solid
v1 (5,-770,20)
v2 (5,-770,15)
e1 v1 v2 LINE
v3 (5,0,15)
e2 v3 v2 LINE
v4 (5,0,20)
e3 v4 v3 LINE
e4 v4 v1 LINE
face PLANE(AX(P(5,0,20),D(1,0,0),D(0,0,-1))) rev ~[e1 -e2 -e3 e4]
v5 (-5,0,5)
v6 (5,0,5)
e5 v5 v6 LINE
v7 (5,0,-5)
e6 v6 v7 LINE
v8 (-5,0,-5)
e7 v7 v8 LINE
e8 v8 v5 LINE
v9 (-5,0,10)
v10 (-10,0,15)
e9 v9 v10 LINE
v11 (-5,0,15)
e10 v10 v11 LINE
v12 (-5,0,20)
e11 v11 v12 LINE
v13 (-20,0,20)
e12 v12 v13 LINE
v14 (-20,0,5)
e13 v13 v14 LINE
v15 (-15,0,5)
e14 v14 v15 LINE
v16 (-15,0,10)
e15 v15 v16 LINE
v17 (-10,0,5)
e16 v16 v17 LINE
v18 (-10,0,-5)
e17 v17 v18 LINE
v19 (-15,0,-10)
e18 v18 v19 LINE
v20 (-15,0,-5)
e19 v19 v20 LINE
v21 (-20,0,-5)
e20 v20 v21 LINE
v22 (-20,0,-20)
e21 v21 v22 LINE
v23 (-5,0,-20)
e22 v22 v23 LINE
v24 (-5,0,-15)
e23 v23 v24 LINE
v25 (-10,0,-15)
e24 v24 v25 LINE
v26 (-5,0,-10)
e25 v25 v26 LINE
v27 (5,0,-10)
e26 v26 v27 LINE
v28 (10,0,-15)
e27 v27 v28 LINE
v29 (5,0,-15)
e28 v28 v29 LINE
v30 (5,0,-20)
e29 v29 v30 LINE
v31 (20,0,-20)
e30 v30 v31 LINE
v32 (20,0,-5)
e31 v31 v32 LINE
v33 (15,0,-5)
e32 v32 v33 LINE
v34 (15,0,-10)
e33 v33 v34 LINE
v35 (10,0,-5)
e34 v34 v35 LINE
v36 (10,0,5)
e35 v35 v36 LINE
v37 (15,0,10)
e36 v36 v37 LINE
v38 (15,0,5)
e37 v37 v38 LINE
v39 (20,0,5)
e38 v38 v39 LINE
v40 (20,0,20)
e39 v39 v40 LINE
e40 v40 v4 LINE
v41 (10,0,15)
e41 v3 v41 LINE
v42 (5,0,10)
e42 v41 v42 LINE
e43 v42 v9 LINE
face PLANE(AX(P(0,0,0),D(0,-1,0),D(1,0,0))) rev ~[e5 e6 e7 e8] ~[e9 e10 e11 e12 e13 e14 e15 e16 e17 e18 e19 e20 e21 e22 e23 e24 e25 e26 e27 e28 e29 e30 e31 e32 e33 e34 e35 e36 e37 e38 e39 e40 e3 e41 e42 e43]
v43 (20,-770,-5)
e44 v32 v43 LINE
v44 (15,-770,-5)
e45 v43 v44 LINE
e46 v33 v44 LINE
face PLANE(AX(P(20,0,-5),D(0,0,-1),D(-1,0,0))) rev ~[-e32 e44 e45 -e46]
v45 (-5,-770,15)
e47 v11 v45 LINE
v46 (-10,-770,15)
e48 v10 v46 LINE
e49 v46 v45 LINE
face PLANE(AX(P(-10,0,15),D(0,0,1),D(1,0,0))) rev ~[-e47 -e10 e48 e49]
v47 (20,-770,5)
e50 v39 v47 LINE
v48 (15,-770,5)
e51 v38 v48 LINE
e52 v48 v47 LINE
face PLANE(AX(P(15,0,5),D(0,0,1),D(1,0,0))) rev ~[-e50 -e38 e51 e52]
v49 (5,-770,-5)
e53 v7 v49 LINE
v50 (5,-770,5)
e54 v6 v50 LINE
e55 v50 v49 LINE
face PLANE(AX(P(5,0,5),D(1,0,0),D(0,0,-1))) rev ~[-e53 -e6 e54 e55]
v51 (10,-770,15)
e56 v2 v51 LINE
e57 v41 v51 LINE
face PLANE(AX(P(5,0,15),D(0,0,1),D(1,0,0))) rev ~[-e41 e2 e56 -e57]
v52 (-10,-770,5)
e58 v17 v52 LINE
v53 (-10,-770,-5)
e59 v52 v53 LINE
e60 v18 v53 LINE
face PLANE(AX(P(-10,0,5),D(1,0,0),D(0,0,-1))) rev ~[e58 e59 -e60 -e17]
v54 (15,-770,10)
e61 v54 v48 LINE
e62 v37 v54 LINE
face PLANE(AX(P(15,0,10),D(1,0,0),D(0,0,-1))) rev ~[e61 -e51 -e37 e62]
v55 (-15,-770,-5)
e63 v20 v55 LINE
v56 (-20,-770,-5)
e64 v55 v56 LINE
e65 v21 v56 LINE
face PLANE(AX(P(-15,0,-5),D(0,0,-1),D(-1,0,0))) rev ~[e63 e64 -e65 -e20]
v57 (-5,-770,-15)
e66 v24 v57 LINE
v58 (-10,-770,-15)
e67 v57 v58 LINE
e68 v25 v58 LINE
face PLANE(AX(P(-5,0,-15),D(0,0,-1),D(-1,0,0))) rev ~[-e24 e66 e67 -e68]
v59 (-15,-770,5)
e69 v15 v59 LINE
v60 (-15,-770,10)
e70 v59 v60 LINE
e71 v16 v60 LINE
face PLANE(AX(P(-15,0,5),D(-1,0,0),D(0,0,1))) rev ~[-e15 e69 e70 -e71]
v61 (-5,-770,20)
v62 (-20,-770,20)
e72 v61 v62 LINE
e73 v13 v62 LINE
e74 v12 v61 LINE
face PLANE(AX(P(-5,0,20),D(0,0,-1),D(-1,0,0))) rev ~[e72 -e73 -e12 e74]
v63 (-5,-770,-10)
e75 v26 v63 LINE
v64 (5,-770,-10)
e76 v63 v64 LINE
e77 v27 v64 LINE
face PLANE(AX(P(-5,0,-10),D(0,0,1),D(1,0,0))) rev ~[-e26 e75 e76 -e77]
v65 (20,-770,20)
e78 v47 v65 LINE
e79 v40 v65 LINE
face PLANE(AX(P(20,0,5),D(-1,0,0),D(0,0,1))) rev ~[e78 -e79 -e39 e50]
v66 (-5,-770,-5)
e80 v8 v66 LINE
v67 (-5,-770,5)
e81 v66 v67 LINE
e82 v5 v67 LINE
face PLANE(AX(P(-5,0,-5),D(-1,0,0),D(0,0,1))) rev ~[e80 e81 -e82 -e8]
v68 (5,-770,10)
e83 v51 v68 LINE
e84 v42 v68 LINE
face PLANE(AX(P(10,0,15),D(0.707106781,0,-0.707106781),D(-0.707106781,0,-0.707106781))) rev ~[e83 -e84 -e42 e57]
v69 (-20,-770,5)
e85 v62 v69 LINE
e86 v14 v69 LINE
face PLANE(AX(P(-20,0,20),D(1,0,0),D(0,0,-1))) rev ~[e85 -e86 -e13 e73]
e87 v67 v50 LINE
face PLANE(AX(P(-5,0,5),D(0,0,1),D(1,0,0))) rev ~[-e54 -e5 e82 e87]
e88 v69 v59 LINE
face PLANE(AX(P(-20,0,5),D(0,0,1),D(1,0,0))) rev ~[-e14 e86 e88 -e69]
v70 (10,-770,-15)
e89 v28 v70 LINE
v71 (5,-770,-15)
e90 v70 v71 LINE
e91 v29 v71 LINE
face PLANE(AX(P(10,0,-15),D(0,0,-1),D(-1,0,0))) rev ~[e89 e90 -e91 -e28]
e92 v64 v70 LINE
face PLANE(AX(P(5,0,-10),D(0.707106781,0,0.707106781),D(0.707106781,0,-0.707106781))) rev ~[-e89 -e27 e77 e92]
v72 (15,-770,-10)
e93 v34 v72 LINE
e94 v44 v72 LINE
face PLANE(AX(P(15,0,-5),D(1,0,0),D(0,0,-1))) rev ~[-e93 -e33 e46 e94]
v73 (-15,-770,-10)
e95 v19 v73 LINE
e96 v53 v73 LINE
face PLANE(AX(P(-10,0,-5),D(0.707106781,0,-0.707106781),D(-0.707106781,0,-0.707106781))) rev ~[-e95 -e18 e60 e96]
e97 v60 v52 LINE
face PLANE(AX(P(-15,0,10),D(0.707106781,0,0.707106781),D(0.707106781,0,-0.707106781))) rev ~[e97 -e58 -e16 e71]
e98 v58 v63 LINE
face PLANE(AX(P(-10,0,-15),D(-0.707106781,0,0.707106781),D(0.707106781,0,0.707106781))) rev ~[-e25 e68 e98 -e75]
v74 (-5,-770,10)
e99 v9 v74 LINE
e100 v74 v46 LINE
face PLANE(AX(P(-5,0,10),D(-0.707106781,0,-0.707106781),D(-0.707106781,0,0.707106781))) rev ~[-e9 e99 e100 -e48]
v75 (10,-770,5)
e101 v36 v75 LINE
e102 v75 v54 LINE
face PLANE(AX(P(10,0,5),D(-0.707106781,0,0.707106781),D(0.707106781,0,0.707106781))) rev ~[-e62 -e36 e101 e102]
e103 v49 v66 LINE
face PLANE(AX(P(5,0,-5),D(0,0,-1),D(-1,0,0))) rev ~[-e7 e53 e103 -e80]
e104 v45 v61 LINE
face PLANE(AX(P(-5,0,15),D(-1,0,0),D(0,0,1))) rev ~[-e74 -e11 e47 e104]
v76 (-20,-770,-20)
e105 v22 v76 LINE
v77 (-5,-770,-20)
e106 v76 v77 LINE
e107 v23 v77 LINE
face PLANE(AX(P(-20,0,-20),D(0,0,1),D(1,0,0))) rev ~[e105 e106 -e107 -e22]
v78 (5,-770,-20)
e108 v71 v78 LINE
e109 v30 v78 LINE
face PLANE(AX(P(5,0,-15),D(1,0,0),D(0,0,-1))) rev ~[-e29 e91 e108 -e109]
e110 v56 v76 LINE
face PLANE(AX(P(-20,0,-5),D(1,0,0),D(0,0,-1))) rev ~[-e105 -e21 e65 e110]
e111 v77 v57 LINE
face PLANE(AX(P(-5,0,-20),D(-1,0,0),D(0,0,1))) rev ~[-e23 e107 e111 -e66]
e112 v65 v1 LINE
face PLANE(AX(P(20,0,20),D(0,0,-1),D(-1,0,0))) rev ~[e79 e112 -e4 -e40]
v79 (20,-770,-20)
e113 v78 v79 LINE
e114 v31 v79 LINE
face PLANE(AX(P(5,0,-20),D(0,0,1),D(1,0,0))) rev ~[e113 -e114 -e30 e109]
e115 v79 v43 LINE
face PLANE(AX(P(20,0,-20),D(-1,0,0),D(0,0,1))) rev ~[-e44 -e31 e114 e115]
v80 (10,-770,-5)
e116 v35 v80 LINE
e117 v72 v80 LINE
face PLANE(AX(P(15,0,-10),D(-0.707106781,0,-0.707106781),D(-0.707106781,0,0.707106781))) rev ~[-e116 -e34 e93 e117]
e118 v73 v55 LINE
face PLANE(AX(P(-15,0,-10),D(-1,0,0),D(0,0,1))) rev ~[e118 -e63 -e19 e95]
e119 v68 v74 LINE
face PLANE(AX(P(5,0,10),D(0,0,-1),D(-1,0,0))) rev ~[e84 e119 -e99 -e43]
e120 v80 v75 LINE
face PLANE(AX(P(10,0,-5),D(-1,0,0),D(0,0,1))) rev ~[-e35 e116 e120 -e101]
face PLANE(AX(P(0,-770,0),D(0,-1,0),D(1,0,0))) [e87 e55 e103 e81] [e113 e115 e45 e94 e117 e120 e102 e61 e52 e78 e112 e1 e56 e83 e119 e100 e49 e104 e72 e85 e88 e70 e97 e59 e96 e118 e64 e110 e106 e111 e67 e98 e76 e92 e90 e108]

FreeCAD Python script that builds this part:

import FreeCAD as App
import Part
import Sketcher

V = App.Vector


def add_polygon(sketch, points):
    """Adds a closed chain of lines whose ends are joined by coincident constraints."""
    first, n = sketch.GeometryCount, len(points)
    for a, b in zip(points, points[1:] + points[:1]):
        sketch.addGeometry(Part.LineSegment(App.Vector(*a, 0), App.Vector(*b, 0)), False)
    for i in range(n):
        sketch.addConstraint(Sketcher.Constraint("Coincident", first + i, 2, first + (i + 1) % n, 1))

doc = App.newDocument("Part")
params = doc.addObject("Spreadsheet::Sheet", "Params")
for row, (alias, value) in enumerate([
    ("sketch1_width", "15 mm"),
    ("sketch1_width2", "10 mm"),
    ("pad1_length", "770 mm"),
], start=1):
    params.set(f"A{row}", alias)
    params.set(f"B{row}", "=" + value)
    params.setAlias(f"B{row}", alias)

body = doc.addObject("PartDesign::Body", "Body")

# Sketch on XZ plane
sketch1 = body.newObject("Sketcher::SketchObject", "Sketch")
sketch1.AttachmentSupport = (doc.getObject("XZ_Plane"), [""])
sketch1.MapMode = "FlatFace"
add_polygon(sketch1, [(20, 5), (20, 20), (5, 20), (5, 15), (10, 15), (5, 10), (-5, 10), (-10, 15), (-5, 15), (-5, 20), (-20, 20), (-20, 5), (-15, 5), (-15, 10), (-10, 5), (-10, -5), (-15, -10), (-15, -5), (-20, -5), (-20, -20), (-5, -20), (-5, -15), (-10, -15), (-5, -10), (5, -10), (10, -15), (5, -15), (5, -20), (20, -20), (20, -5), (15, -5), (15, -10), (10, -5), (10, 5), (15, 10), (15, 5)])  # lines 0-35
add_polygon(sketch1, [(-5, -5), (-5, 5), (5, 5), (5, -5)])  # lines 36-39
sketch1.addConstraint(Sketcher.Constraint("Vertical", 0))
sketch1.addConstraint(Sketcher.Constraint("Horizontal", 1))
sketch1.addConstraint(Sketcher.Constraint("Vertical", 2))
sketch1.addConstraint(Sketcher.Constraint("Horizontal", 3))
sketch1.addConstraint(Sketcher.Constraint("Horizontal", 5))
sketch1.addConstraint(Sketcher.Constraint("Horizontal", 7))
sketch1.addConstraint(Sketcher.Constraint("Vertical", 8))
sketch1.addConstraint(Sketcher.Constraint("Horizontal", 9))
sketch1.addConstraint(Sketcher.Constraint("Vertical", 10))
sketch1.addConstraint(Sketcher.Constraint("Horizontal", 11))
sketch1.addConstraint(Sketcher.Constraint("Vertical", 12))
sketch1.addConstraint(Sketcher.Constraint("Vertical", 14))
sketch1.addConstraint(Sketcher.Constraint("Vertical", 16))
sketch1.addConstraint(Sketcher.Constraint("Horizontal", 17))
sketch1.addConstraint(Sketcher.Constraint("Vertical", 18))
sketch1.addConstraint(Sketcher.Constraint("Horizontal", 19))
sketch1.addConstraint(Sketcher.Constraint("Vertical", 20))
sketch1.addConstraint(Sketcher.Constraint("Horizontal", 21))
sketch1.addConstraint(Sketcher.Constraint("Horizontal", 23))
sketch1.addConstraint(Sketcher.Constraint("Horizontal", 25))
sketch1.addConstraint(Sketcher.Constraint("Vertical", 26))
sketch1.addConstraint(Sketcher.Constraint("Horizontal", 27))
sketch1.addConstraint(Sketcher.Constraint("Vertical", 28))
sketch1.addConstraint(Sketcher.Constraint("Horizontal", 29))
sketch1.addConstraint(Sketcher.Constraint("Vertical", 30))
sketch1.addConstraint(Sketcher.Constraint("Vertical", 32))
sketch1.addConstraint(Sketcher.Constraint("Vertical", 34))
sketch1.addConstraint(Sketcher.Constraint("Horizontal", 35))
sketch1.addConstraint(Sketcher.Constraint("Vertical", 36))
sketch1.addConstraint(Sketcher.Constraint("Horizontal", 37))
sketch1.addConstraint(Sketcher.Constraint("Vertical", 38))
sketch1.addConstraint(Sketcher.Constraint("Horizontal", 39))
sketch1.addConstraint(Sketcher.Constraint("Symmetric", 0, 2, 18, 2, -1, 1))
sketch1.addConstraint(Sketcher.Constraint("Symmetric", 2, 2, 20, 2, -1, 1))
sketch1.addConstraint(Sketcher.Constraint("Symmetric", 4, 2, 22, 2, -1, 1))
sketch1.addConstraint(Sketcher.Constraint("Symmetric", 6, 2, 24, 2, -1, 1))
sketch1.addConstraint(Sketcher.Constraint("Symmetric", 8, 2, 26, 2, -1, 1))
sketch1.addConstraint(Sketcher.Constraint("Symmetric", 10, 2, 28, 2, -1, 1))
sketch1.addConstraint(Sketcher.Constraint("Symmetric", 12, 2, 30, 2, -1, 1))
sketch1.addConstraint(Sketcher.Constraint("Symmetric", 13, 2, 31, 2, -1, 1))
sketch1.addConstraint(Sketcher.Constraint("Symmetric", 15, 2, 33, 2, -1, 1))
sketch1.addConstraint(Sketcher.Constraint("Symmetric", 36, 2, 38, 2, -1, 1))
sketch1.addConstraint(Sketcher.Constraint("Symmetric", 3, 2, 6, 2, -2))
sketch1.addConstraint(Sketcher.Constraint("Symmetric", 1, 2, 8, 2, -2))
sketch1.addConstraint(Sketcher.Constraint("Symmetric", 17, 2, 28, 2, -2))
sketch1.addConstraint(Sketcher.Constraint("Symmetric", 15, 2, 30, 2, -2))
sketch1.addConstraint(Sketcher.Constraint("Perpendicular", 4, 6))
sketch1.addConstraint(Sketcher.Constraint("Parallel", 6, 13))
sketch1.addConstraint(Sketcher.Constraint("Perpendicular", 13, 15))
sketch1.addConstraint(Sketcher.Constraint("Parallel", 15, 22))
sketch1.addConstraint(Sketcher.Constraint("Perpendicular", 22, 24))
sketch1.addConstraint(Sketcher.Constraint("Perpendicular", 31, 33))
sketch1.addConstraint(Sketcher.Constraint("Horizontal", 5, 2, 12, 2))
sketch1.addConstraint(Sketcher.Constraint("Horizontal", 11, 2, 13, 2))
sketch1.addConstraint(Sketcher.Constraint("Horizontal", 14, 2, 16, 2))
sketch1.addConstraint(Sketcher.Constraint("Horizontal", 32, 2, 34, 2))
sketch1.addConstraint(Sketcher.Constraint("Horizontal", 35, 2, 36, 2))
sketch1.addConstraint(Sketcher.Constraint("Vertical", 2, 2, 4, 2))
sketch1.addConstraint(Sketcher.Constraint("Vertical", 6, 2, 13, 2))
sketch1.addConstraint(Sketcher.Constraint("Vertical", 22, 2, 36, 2))
sketch1.addConstraint(Sketcher.Constraint("Equal", 7, 11))
sketch1.addConstraint(Sketcher.Constraint("Equal", 27, 0))
sketch1.addConstraint(Sketcher.Constraint("Equal", 8, 12))
sketch1.addConstraint(Sketcher.Constraint("Equal", 39, 14))
sketch1.addConstraint(Sketcher.Constraint("DistanceX", 1, 2, 1, 1, 15.0))
sketch1.addConstraint(Sketcher.Constraint("DistanceX", 5, 2, 5, 1, 10.0))
sketch1.setExpression("Constraints[104]", "Params.sketch1_width")
sketch1.setExpression("Constraints[105]", "Params.sketch1_width2")
pad1 = body.newObject("PartDesign::Pad", "Pad")
pad1.Profile = sketch1
pad1.setExpression("Length", "Params.pad1_length")

doc.recompute()
